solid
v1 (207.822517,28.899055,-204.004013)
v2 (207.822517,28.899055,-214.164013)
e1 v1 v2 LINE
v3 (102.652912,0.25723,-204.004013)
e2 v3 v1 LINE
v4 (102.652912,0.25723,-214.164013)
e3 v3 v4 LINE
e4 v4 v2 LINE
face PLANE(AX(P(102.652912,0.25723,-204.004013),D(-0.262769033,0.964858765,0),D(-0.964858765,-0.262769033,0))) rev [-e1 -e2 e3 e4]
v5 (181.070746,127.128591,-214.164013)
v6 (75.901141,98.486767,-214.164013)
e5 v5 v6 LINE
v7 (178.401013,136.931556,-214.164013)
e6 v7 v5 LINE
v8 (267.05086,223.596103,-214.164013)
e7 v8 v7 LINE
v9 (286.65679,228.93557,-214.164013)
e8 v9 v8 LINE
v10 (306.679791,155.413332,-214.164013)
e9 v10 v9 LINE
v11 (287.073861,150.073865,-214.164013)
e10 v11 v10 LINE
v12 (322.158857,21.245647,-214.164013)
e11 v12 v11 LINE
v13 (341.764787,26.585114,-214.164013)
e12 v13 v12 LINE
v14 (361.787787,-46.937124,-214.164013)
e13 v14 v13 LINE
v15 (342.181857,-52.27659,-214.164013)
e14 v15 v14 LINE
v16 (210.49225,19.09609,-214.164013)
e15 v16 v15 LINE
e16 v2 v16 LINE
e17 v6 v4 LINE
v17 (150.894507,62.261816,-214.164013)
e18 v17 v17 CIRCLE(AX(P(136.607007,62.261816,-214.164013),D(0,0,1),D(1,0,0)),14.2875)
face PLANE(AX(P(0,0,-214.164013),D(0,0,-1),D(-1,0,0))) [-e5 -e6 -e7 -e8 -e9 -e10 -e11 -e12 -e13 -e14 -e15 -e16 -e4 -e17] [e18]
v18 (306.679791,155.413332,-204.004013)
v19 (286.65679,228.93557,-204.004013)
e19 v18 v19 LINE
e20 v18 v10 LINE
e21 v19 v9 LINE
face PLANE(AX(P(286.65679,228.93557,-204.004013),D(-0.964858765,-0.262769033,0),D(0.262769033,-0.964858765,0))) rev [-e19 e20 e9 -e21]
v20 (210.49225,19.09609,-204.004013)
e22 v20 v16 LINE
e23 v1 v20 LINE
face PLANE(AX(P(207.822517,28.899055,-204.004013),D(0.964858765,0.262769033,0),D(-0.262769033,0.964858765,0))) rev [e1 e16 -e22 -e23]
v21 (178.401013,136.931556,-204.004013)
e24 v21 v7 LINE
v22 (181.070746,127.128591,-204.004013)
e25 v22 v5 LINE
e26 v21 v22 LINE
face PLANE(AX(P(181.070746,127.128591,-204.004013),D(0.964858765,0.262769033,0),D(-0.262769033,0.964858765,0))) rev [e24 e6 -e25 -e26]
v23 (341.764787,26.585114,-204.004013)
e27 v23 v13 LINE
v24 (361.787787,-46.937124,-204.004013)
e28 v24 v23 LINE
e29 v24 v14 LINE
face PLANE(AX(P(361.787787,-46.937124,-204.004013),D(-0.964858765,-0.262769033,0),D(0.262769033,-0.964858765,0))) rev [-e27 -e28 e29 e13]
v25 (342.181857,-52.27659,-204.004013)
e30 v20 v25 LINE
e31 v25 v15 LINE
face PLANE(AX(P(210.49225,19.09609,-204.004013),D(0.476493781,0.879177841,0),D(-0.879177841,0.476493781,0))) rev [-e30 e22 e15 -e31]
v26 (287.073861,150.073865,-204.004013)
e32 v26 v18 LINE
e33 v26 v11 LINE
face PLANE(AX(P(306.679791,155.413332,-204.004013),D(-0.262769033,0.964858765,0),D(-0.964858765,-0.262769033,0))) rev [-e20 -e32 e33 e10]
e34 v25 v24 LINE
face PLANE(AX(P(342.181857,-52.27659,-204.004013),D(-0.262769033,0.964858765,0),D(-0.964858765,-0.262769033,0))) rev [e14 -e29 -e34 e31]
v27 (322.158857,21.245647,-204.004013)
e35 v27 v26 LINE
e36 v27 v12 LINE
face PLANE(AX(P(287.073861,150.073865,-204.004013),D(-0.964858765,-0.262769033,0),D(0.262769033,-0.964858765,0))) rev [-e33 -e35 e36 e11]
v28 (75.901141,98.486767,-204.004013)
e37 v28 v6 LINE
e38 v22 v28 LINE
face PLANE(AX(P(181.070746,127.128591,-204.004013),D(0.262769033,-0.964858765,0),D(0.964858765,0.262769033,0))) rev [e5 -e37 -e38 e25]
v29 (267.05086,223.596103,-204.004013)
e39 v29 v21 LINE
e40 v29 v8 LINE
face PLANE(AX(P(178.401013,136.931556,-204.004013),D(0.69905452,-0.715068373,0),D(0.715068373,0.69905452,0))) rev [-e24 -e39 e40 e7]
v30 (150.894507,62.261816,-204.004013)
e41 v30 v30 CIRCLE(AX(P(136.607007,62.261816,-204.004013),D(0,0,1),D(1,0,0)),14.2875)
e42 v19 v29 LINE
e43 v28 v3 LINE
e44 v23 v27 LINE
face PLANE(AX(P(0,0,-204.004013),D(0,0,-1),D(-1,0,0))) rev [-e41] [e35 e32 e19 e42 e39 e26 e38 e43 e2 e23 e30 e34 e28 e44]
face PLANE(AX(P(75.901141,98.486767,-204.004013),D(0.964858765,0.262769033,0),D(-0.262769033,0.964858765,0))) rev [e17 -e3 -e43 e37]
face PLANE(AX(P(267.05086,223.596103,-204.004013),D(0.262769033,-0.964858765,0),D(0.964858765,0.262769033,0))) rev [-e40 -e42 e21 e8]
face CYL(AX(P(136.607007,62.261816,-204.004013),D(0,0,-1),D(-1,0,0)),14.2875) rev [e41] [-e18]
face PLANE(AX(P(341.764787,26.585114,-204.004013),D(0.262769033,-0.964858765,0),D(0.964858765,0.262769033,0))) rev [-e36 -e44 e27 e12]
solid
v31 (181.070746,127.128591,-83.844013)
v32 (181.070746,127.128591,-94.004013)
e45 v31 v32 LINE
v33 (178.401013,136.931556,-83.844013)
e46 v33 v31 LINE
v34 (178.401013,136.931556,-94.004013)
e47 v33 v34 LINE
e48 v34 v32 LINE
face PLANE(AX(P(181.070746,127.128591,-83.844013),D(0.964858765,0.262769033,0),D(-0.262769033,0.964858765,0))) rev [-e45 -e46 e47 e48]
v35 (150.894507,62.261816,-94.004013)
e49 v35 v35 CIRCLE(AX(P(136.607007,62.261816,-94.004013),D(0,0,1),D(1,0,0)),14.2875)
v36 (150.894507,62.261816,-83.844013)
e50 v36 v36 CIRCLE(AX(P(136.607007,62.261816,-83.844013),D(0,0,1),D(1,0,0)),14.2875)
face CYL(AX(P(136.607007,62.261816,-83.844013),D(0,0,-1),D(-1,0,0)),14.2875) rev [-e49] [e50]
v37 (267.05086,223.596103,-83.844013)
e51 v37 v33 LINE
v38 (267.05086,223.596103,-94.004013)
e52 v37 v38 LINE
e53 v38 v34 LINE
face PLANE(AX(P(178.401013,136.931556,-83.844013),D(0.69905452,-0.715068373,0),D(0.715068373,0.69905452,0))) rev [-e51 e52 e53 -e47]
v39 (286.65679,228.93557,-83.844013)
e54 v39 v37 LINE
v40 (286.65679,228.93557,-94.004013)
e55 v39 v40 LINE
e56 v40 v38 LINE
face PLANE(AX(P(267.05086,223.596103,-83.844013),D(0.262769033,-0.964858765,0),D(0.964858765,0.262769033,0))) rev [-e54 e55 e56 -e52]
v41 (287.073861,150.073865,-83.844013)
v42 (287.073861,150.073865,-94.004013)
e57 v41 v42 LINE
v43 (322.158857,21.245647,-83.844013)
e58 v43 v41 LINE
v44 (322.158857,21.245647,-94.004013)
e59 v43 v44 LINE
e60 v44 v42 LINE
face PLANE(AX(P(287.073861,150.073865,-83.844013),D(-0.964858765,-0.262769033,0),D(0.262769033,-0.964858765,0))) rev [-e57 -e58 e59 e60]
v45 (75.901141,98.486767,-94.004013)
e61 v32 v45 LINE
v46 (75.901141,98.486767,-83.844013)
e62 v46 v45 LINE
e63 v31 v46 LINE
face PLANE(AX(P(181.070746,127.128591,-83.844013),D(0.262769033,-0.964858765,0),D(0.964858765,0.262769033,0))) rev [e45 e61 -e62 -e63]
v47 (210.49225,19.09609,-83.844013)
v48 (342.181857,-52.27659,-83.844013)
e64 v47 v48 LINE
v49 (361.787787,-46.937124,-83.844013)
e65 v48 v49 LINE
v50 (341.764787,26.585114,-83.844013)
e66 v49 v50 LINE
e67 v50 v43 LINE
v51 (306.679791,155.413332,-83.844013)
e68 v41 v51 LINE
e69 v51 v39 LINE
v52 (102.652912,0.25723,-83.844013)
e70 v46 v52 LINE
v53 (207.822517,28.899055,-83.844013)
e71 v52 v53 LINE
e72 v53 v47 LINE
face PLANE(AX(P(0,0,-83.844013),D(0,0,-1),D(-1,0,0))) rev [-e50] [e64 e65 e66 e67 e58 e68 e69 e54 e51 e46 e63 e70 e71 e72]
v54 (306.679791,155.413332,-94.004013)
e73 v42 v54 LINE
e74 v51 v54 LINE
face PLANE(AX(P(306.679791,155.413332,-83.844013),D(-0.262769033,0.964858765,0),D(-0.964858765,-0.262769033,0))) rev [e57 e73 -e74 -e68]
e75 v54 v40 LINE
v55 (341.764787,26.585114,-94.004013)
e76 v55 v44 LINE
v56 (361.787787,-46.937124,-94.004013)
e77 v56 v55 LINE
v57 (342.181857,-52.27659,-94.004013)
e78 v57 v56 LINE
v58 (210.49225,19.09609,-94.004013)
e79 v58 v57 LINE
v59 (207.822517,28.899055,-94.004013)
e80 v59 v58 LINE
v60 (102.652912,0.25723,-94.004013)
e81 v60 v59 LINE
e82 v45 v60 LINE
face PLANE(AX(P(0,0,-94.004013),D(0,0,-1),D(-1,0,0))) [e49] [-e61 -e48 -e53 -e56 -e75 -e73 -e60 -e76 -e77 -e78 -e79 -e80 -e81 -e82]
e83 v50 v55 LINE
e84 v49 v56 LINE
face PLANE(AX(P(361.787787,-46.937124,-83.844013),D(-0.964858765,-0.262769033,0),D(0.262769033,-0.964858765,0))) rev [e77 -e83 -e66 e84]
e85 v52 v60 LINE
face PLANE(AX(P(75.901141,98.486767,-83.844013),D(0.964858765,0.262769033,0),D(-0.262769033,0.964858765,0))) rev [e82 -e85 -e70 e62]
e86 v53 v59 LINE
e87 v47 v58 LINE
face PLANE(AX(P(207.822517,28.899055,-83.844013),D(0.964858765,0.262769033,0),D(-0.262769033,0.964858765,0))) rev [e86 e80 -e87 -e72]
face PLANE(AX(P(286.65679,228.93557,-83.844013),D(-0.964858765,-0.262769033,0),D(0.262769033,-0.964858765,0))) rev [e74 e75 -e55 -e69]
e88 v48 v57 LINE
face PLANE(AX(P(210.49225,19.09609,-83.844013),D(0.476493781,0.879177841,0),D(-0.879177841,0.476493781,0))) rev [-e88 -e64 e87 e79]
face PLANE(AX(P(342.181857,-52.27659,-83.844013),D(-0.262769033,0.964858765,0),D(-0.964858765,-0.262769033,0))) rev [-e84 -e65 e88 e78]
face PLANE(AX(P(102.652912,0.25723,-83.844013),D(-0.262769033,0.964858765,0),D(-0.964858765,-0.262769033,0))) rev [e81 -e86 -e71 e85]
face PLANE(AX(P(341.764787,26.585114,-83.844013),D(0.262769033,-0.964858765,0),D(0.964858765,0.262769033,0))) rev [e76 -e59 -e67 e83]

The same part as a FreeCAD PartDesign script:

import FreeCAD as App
import Part
import Sketcher
Q = App.Units.Quantity


def add_polygon(sketch, points):
    """Adds a closed chain of lines whose ends are joined by coincident constraints."""
    first, n = sketch.GeometryCount, len(points)
    for a, b in zip(points, points[1:] + points[:1]):
        sketch.addGeometry(Part.LineSegment(App.Vector(*a, 0), App.Vector(*b, 0)), False)
    for i in range(n):
        sketch.addConstraint(Sketcher.Constraint("Coincident", first + i, 2, first + (i + 1) % n, 1))

doc = App.newDocument("Part")
body = doc.addObject("PartDesign::Body", "Body")

# Sketch on XY plane
sketch1 = body.newObject("Sketcher::SketchObject", "Sketch")
sketch1.AttachmentSupport = (doc.getObject("XY_Plane"), [""])
sketch1.MapMode = "FlatFace"
sketch1.AttachmentOffset = App.Placement(App.Vector(0, 0, -94.004013), App.Rotation())
add_polygon(sketch1, [(181, 127), (76, 98), (103, 0), (208, 29), (210, 19), (342, -52), (362, -47), (342, 27), (322, 21), (287, 150), (307, 155), (287, 229), (267, 224), (178, 137)])  # lines 0-13
sketch1.addGeometry(Part.Circle(App.Vector(137, 62, 0), App.Vector(0, 0, 1), 14), False)  # 14
sketch1.addConstraint([
    Sketcher.Constraint("Perpendicular", 0, 1),
    Sketcher.Constraint("Perpendicular", 1, 2),
    Sketcher.Constraint("Perpendicular", 2, 3),
    Sketcher.Constraint("Perpendicular", 3, 5),
    Sketcher.Constraint("Perpendicular", 5, 6),
    Sketcher.Constraint("Perpendicular", 6, 7),
    Sketcher.Constraint("Perpendicular", 7, 8),
    Sketcher.Constraint("Perpendicular", 8, 9),
    Sketcher.Constraint("Perpendicular", 9, 10),
    Sketcher.Constraint("Perpendicular", 10, 11),
    Sketcher.Constraint("Perpendicular", 11, 13),
    Sketcher.Constraint("Equal", 0, 2),
    Sketcher.Constraint("Equal", 5, 7),
    Sketcher.Constraint("Equal", 7, 9),
    Sketcher.Constraint("Equal", 6, 10),
    Sketcher.Constraint("Equal", 9, 11),
    Sketcher.Constraint("Equal", 3, 13),
    Sketcher.Constraint("Distance", 6, Q("3 in")),
    Sketcher.Constraint("Diameter", 14, Q("1.125 in")),
    Sketcher.Constraint("Distance", 3, Q("0.4 in")),
    Sketcher.Constraint("Distance", 5, Q("0.8 in")),
    Sketcher.Constraint("DistanceY", 6, 2, 2, 2, Q("0.0911 in")),
    Sketcher.Constraint("Distance", 0, 109.0),
    Sketcher.Constraint("DistanceX", 6, 2, 5, 2, 20.023),
    Sketcher.Constraint("DistanceY", 6, 2, 14, 3, 35.676702),
    Sketcher.Constraint("DistanceY", 2, 2, 12, 2, 108.032502),
    Sketcher.Constraint("DistanceX", -1, 1, 0, 2, 75.90114),
    Sketcher.Constraint("DistanceY", -1, 1, 1, 2, 0.257229),
    Sketcher.Constraint("DistanceX", -1, 1, 8, 2, 287.07386),
    Sketcher.Constraint("DistanceY", -1, 1, 9, 2, 155.413331),
    Sketcher.Constraint("DistanceX", 14, 3, 2, 2, 71.21551),
])
pad1 = body.newObject("PartDesign::Pad", "Pad")
pad1.Profile = sketch1
pad1.Length = Q("0.4 in")
body2 = doc.addObject("PartDesign::Body", "Body001")

# Sketch on XY plane
sketch2 = body2.newObject("Sketcher::SketchObject", "Sketch001")
sketch2.AttachmentSupport = (doc.getObject("XY_Plane001"), [""])
sketch2.MapMode = "FlatFace"
sketch2.AttachmentOffset = App.Placement(App.Vector(0, 0, -214.164013), App.Rotation())
add_polygon(sketch2, [(181, 127), (76, 98), (103, 0), (208, 29), (210, 19), (342, -52), (362, -47), (342, 27), (322, 21), (287, 150), (307, 155), (287, 229), (267, 224), (178, 137)])  # lines 0-13
sketch2.addGeometry(Part.Circle(App.Vector(137, 62, 0), App.Vector(0, 0, 1), 14), False)  # 14
sketch2.addConstraint([
    Sketcher.Constraint("Perpendicular", 0, 1),
    Sketcher.Constraint("Perpendicular", 1, 2),
    Sketcher.Constraint("Perpendicular", 2, 3),
    Sketcher.Constraint("Perpendicular", 3, 5),
    Sketcher.Constraint("Perpendicular", 5, 6),
    Sketcher.Constraint("Perpendicular", 6, 7),
    Sketcher.Constraint("Perpendicular", 7, 8),
    Sketcher.Constraint("Perpendicular", 8, 9),
    Sketcher.Constraint("Perpendicular", 9, 10),
    Sketcher.Constraint("Perpendicular", 10, 11),
    Sketcher.Constraint("Perpendicular", 11, 13),
    Sketcher.Constraint("Equal", 0, 2),
    Sketcher.Constraint("Equal", 5, 7),
    Sketcher.Constraint("Equal", 7, 9),
    Sketcher.Constraint("Equal", 6, 10),
    Sketcher.Constraint("Equal", 9, 11),
    Sketcher.Constraint("Equal", 3, 13),
    Sketcher.Constraint("Distance", 6, Q("3 in")),
    Sketcher.Constraint("Diameter", 14, Q("1.125 in")),
    Sketcher.Constraint("Distance", 3, Q("0.4 in")),
    Sketcher.Constraint("Distance", 5, Q("0.8 in")),
    Sketcher.Constraint("DistanceY", 6, 2, 2, 2, Q("0.0911 in")),
    Sketcher.Constraint("Distance", 0, 109.0),
    Sketcher.Constraint("DistanceX", 6, 2, 5, 2, 20.023),
    Sketcher.Constraint("DistanceY", 6, 2, 14, 3, 35.676702),
    Sketcher.Constraint("DistanceY", 2, 2, 12, 2, 108.032502),
    Sketcher.Constraint("DistanceX", -1, 1, 0, 2, 75.90114),
    Sketcher.Constraint("DistanceY", -1, 1, 1, 2, 0.257229),
    Sketcher.Constraint("DistanceX", -1, 1, 8, 2, 287.07386),
    Sketcher.Constraint("DistanceY", -1, 1, 9, 2, 155.413331),
    Sketcher.Constraint("DistanceX", 14, 3, 2, 2, 71.21551),
])
pad2 = body2.newObject("PartDesign::Pad", "Pad001")
pad2.Profile = sketch2
pad2.Length = Q("0.4 in")

doc.recompute()
